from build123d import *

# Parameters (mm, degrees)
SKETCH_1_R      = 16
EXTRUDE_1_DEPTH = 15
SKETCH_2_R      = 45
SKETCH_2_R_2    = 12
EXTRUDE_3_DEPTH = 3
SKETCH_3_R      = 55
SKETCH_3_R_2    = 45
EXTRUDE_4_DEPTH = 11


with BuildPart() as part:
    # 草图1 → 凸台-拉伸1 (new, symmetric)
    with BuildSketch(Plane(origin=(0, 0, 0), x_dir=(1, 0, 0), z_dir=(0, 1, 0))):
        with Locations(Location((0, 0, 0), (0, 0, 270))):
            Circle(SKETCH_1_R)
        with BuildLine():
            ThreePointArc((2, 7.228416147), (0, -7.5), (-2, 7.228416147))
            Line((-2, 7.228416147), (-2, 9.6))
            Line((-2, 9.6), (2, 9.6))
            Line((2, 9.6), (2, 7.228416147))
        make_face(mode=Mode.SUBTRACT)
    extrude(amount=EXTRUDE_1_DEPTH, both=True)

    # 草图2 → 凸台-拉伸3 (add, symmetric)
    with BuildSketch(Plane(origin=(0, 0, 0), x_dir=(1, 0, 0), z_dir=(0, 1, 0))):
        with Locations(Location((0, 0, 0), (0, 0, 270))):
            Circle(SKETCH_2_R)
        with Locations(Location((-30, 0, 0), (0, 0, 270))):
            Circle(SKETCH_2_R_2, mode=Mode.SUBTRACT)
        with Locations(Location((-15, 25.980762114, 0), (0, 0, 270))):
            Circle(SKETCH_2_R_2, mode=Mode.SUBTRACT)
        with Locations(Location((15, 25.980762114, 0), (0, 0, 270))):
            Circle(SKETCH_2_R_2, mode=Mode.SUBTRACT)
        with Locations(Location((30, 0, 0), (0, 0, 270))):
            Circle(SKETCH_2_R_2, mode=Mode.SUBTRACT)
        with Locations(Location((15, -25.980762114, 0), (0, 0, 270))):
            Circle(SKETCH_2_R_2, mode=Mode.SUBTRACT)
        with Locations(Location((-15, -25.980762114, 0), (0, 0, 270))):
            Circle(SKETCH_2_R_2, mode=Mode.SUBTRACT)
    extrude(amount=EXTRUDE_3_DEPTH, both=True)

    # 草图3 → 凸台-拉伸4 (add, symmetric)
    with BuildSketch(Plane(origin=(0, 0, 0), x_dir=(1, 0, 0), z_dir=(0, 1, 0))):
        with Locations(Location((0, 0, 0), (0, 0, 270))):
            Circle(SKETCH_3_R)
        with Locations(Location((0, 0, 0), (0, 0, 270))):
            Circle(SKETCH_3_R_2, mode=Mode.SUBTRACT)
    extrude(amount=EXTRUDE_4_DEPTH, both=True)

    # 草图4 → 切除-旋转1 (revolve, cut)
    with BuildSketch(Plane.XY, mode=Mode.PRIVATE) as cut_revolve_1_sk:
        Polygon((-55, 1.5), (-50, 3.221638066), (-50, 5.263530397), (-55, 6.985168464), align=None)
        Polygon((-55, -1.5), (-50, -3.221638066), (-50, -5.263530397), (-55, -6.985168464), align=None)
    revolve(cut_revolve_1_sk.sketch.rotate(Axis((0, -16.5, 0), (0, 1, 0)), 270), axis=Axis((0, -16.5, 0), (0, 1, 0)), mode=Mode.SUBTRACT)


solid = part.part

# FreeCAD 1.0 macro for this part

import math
import FreeCAD as App
import Part
import Sketcher

V = App.Vector
Q = App.Units.Quantity

doc = App.newDocument("Part")
body = doc.addObject("PartDesign::Body", "Body")

sketch1 = body.newObject("Sketcher::SketchObject", "Sketch")
sketch1.AttachmentSupport = (doc.getObject("XZ_Plane"), [""])
sketch1.MapMode = "FlatFace"
sketch1.addGeometry(Part.Circle(V(0, 0, 0), V(0, 0, 1), 16), False)
sketch1.addGeometry(Part.LineSegment(V(2, -9.6, 0), V(2, -7.2, 0)), False)
sketch1.addGeometry(Part.ArcOfCircle(Part.Circle(V(0, 0, 0), V(0, 0, 1), 7.5), math.radians(-75), math.radians(255)), False)
sketch1.addGeometry(Part.LineSegment(V(-2, -7.2, 0), V(-2, -9.6, 0)), False)
sketch1.addGeometry(Part.LineSegment(V(-2, -9.6, 0), V(2, -9.6, 0)), False)
sketch1.addConstraint(Sketcher.Constraint("Coincident", 1, 2, 2, 1))
sketch1.addConstraint(Sketcher.Constraint("Coincident", 2, 2, 3, 1))
sketch1.addConstraint(Sketcher.Constraint("Coincident", 3, 2, 4, 1))
sketch1.addConstraint(Sketcher.Constraint("Coincident", 4, 2, 1, 1))
sketch1.addConstraint(Sketcher.Constraint("Vertical", 1))
sketch1.addConstraint(Sketcher.Constraint("Vertical", 3))
sketch1.addConstraint(Sketcher.Constraint("Horizontal", 4))
sketch1.addConstraint(Sketcher.Constraint("Coincident", 0, 3, -1, 1))
sketch1.addConstraint(Sketcher.Constraint("Coincident", 2, 3, -1, 1))
sketch1.addConstraint(Sketcher.Constraint("Horizontal", 1, 2, 2, 2))
sketch1.addConstraint(Sketcher.Constraint("Diameter", 0, Q("32 mm")))
sketch1.addConstraint(Sketcher.Constraint("Radius", 2, Q("7.5 mm")))
sketch1.addConstraint(Sketcher.Constraint("DistanceX", 4, 1, 4, 2, Q("4 mm")))
sketch1.addConstraint(Sketcher.Constraint("DistanceY", 3, 2, -1, 1, Q("9.6 mm")))
pad1 = body.newObject("PartDesign::Pad", "Pad")
pad1.Profile = sketch1
pad1.Length = 30
pad1.Midplane = True

sketch2 = body.newObject("Sketcher::SketchObject", "Sketch001")
sketch2.AttachmentSupport = (doc.getObject("XZ_Plane"), [""])
sketch2.MapMode = "FlatFace"
sketch2.addGeometry(Part.Circle(V(0, 0, 0), V(0, 0, 1), 45), False)
sketch2.addGeometry(Part.Circle(V(-15, -26, 0), V(0, 0, 1), 12), False)
sketch2.addGeometry(Part.Circle(V(-30, 0, 0), V(0, 0, 1), 12), False)
sketch2.addGeometry(Part.Circle(V(-15, 26, 0), V(0, 0, 1), 12), False)
sketch2.addGeometry(Part.Circle(V(15, -26, 0), V(0, 0, 1), 12), False)
sketch2.addGeometry(Part.Circle(V(30, 0, 0), V(0, 0, 1), 12), False)
sketch2.addGeometry(Part.Circle(V(15, 26, 0), V(0, 0, 1), 12), False)
sketch2.addConstraint(Sketcher.Constraint("Coincident", 0, 3, -1, 1))
sketch2.addConstraint(Sketcher.Constraint("Equal", 1, 2))
sketch2.addConstraint(Sketcher.Constraint("Equal", 2, 3))
sketch2.addConstraint(Sketcher.Constraint("Equal", 3, 4))
sketch2.addConstraint(Sketcher.Constraint("Equal", 4, 5))
sketch2.addConstraint(Sketcher.Constraint("Equal", 5, 6))
sketch2.addConstraint(Sketcher.Constraint("Symmetric", 3, 3, 4, 3, -1, 1))
sketch2.addConstraint(Sketcher.Constraint("Symmetric", 2, 3, 5, 3, -1, 1))
sketch2.addConstraint(Sketcher.Constraint("Symmetric", 1, 3, 6, 3, -1, 1))
sketch2.addConstraint(Sketcher.Constraint("Symmetric", 1, 3, 4, 3, -2))
sketch2.addConstraint(Sketcher.Constraint("PointOnObject", 2, 3, -1))
sketch2.addConstraint(Sketcher.Constraint("Diameter", 0, Q("90 mm")))
sketch2.addConstraint(Sketcher.Constraint("Diameter", 1, Q("24 mm")))
sketch2.addConstraint(Sketcher.Constraint("DistanceX", 1, 3, -1, 1, Q("15 mm")))
sketch2.addConstraint(Sketcher.Constraint("DistanceX", 2, 3, -1, 1, Q("30 mm")))
sketch2.addConstraint(Sketcher.Constraint("DistanceY", 1, 3, -1, 1, Q("25.980762 mm")))
pad2 = body.newObject("PartDesign::Pad", "Pad001")
pad2.Profile = sketch2
pad2.Length = 6
pad2.Midplane = True

sketch3 = body.newObject("Sketcher::SketchObject", "Sketch002")
sketch3.AttachmentSupport = (doc.getObject("XZ_Plane"), [""])
sketch3.MapMode = "FlatFace"
sketch3.addGeometry(Part.Circle(V(0, 0, 0), V(0, 0, 1), 55), False)
sketch3.addGeometry(Part.Circle(V(0, 0, 0), V(0, 0, 1), 45), False)
sketch3.addConstraint(Sketcher.Constraint("Coincident", 0, 3, -1, 1))
sketch3.addConstraint(Sketcher.Constraint("Coincident", 1, 3, -1, 1))
sketch3.addConstraint(Sketcher.Constraint("Diameter", 0, Q("110 mm")))
sketch3.addConstraint(Sketcher.Constraint("Diameter", 1, Q("90 mm")))
pad3 = body.newObject("PartDesign::Pad", "Pad002")
pad3.Profile = sketch3
pad3.Length = 22
pad3.Midplane = True

sketch4 = body.newObject("Sketcher::SketchObject", "Sketch003")
sketch4.AttachmentSupport = (doc.getObject("XY_Plane"), [""])
sketch4.MapMode = "FlatFace"
sketch4.addGeometry(Part.LineSegment(V(-55, 1.5, 0), V(-50, 3.2, 0)), False)
sketch4.addGeometry(Part.LineSegment(V(-50, 3.2, 0), V(-50, 5.3, 0)), False)
sketch4.addGeometry(Part.LineSegment(V(-50, 5.3, 0), V(-55, 7, 0)), False)
sketch4.addGeometry(Part.LineSegment(V(-55, 7, 0), V(-55, 1.5, 0)), False)
sketch4.addGeometry(Part.LineSegment(V(-50, -3.2, 0), V(-55, -1.5, 0)), False)
sketch4.addGeometry(Part.LineSegment(V(-55, -1.5, 0), V(-55, -7, 0)), False)
sketch4.addGeometry(Part.LineSegment(V(-55, -7, 0), V(-50, -5.3, 0)), False)
sketch4.addGeometry(Part.LineSegment(V(-50, -5.3, 0), V(-50, -3.2, 0)), False)
sketch4.addConstraint(Sketcher.Constraint("Coincident", 0, 2, 1, 1))
sketch4.addConstraint(Sketcher.Constraint("Coincident", 1, 2, 2, 1))
sketch4.addConstraint(Sketcher.Constraint("Coincident", 2, 2, 3, 1))
sketch4.addConstraint(Sketcher.Constraint("Coincident", 3, 2, 0, 1))
sketch4.addConstraint(Sketcher.Constraint("Coincident", 4, 2, 5, 1))
sketch4.addConstraint(Sketcher.Constraint("Coincident", 5, 2, 6, 1))
sketch4.addConstraint(Sketcher.Constraint("Coincident", 6, 2, 7, 1))
sketch4.addConstraint(Sketcher.Constraint("Coincident", 7, 2, 4, 1))
sketch4.addConstraint(Sketcher.Constraint("Vertical", 1))
sketch4.addConstraint(Sketcher.Constraint("Vertical", 3))
sketch4.addConstraint(Sketcher.Constraint("Vertical", 5))
sketch4.addConstraint(Sketcher.Constraint("Vertical", 7))
sketch4.addConstraint(Sketcher.Constraint("Symmetric", 3, 2, 4, 2, -1))
sketch4.addConstraint(Sketcher.Constraint("Symmetric", 1, 2, 6, 2, -1))
sketch4.addConstraint(Sketcher.Constraint("Parallel", 2, 4))
sketch4.addConstraint(Sketcher.Constraint("Parallel", 0, 6))
sketch4.addConstraint(Sketcher.Constraint("Equal", 3, 5))
sketch4.addConstraint(Sketcher.Constraint("Angle", 0, Q("19 deg")))
sketch4.addConstraint(Sketcher.Constraint("DistanceX", 0, 2, -1, 1, Q("50 mm")))
sketch4.addConstraint(Sketcher.Constraint("DistanceX", 2, 2, -1, 1, Q("55 mm")))
sketch4.addConstraint(Sketcher.Constraint("DistanceY", 4, 2, 3, 2, Q("3 mm")))
sketch4.addConstraint(Sketcher.Constraint("DistanceY", 3, 2, 3, 1, Q("5.485168 mm")))
groove = body.newObject("PartDesign::Groove", "Groove")
groove.Profile = sketch4
groove.ReferenceAxis = (sketch4, ["V_Axis"])
groove.Angle = 360

doc.recompute()
